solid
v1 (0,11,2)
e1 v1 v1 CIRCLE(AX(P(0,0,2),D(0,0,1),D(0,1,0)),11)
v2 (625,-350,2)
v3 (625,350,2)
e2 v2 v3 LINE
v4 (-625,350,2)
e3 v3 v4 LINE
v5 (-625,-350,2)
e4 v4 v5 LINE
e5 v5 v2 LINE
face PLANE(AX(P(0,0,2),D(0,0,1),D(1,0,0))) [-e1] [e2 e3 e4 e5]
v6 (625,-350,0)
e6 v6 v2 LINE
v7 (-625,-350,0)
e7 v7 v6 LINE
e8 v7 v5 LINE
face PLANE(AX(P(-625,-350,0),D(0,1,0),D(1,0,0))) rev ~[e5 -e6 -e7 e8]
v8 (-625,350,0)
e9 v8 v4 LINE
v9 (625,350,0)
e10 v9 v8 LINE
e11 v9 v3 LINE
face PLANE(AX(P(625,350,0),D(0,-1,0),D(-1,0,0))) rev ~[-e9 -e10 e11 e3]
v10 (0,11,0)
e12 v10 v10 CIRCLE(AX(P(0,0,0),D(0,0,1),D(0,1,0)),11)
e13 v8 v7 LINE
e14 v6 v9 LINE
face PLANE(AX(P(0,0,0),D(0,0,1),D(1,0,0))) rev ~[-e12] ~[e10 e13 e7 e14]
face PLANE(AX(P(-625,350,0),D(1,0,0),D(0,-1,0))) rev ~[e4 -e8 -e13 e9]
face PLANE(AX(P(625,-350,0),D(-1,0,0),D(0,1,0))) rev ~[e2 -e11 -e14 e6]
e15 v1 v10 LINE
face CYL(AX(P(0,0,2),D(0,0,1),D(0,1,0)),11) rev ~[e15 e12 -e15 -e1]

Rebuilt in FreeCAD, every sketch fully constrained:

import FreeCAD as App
import Part
import Sketcher
from FreeCAD import Vector
Q = App.Units.Quantity

doc = App.newDocument("Part")
body = doc.addObject("PartDesign::Body", "Body")

# Sketch on XY plane
sketch1 = body.newObject("Sketcher::SketchObject", "Sketch")
sketch1.AttachmentSupport = (doc.getObject("XY_Plane"), [""])
sketch1.MapMode = "FlatFace"
sketch1.addGeometry([
    Part.LineSegment(Vector(-625, 350, 0), Vector(-625, -350, 0)),
    Part.LineSegment(Vector(-625, -350, 0), Vector(625, -350, 0)),
    Part.LineSegment(Vector(625, -350, 0), Vector(625, 350, 0)),
    Part.LineSegment(Vector(625, 350, 0), Vector(-625, 350, 0)),
], False)
sketch1.addConstraint([
    Sketcher.Constraint("Coincident", 0, 2, 1, 1),
    Sketcher.Constraint("Coincident", 1, 2, 2, 1),
    Sketcher.Constraint("Coincident", 2, 2, 3, 1),
    Sketcher.Constraint("Coincident", 3, 2, 0, 1),
    Sketcher.Constraint("Vertical", 0),
    Sketcher.Constraint("Horizontal", 1),
    Sketcher.Constraint("Vertical", 2),
    Sketcher.Constraint("Horizontal", 3),
    Sketcher.Constraint("Symmetric", 0, 2, 2, 2, -1, 1),
    Sketcher.Constraint("DistanceX", 1, 1, 1, 2, Q("1250 mm")),
    Sketcher.Constraint("DistanceY", 0, 2, 0, 1, Q("700 mm")),
])
pad1 = body.newObject("PartDesign::Pad", "Pad")
pad1.Profile = sketch1
pad1.Length = 2

# Sketch on XY plane
sketch2 = body.newObject("Sketcher::SketchObject", "Sketch001")
sketch2.AttachmentSupport = (doc.getObject("XY_Plane"), [""])
sketch2.MapMode = "FlatFace"
sketch2.AttachmentOffset = App.Placement(Vector(0, 0, 2), App.Rotation())
sketch2.addGeometry(Part.Circle(Vector(0, 0, 0), Vector(0, 0, 1), 11), False)
sketch2.addConstraint([
    Sketcher.Constraint("Coincident", 0, 3, -1, 1),
    Sketcher.Constraint("Diameter", 0, Q("22 mm")),
])
pocket1 = body.newObject("PartDesign::Pocket", "Pocket")
pocket1.Profile = sketch2
pocket1.Length = 79.9444

doc.recompute()
